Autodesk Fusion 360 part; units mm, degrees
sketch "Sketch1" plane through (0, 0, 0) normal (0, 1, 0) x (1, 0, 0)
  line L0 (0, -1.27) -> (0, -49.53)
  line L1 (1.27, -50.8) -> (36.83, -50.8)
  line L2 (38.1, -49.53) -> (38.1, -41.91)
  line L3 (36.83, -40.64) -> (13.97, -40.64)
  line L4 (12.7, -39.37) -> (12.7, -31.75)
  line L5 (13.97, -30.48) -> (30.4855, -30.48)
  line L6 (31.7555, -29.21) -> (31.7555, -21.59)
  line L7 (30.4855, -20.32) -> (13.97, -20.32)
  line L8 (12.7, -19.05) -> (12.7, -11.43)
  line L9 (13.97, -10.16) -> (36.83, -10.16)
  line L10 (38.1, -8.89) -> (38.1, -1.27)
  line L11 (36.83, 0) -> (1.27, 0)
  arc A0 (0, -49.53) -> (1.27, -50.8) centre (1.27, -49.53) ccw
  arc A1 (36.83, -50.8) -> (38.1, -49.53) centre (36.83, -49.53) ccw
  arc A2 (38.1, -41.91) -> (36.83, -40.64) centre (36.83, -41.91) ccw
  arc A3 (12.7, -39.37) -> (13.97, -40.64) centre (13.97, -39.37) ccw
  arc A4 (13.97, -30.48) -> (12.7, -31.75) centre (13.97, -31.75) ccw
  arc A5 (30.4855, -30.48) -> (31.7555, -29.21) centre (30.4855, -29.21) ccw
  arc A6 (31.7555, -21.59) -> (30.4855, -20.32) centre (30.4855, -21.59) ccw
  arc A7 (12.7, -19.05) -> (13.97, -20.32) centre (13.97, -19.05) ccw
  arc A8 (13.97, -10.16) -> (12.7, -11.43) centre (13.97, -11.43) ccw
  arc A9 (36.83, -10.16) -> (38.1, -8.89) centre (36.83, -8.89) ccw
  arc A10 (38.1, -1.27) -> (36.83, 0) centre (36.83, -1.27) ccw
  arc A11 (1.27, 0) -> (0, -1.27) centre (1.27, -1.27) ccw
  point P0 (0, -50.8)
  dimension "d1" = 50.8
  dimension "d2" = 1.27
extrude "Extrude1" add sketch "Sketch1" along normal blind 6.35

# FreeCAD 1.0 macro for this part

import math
import FreeCAD as App
import Part
import Sketcher
Q = App.Units.Quantity

doc = App.newDocument("Part")
params = doc.addObject("Spreadsheet::Sheet", "Params")
for row, (alias, value) in enumerate([
    ("sketch1_radius", "0.05 in"),
    ("sketch1_width", "1.4 in"),
    ("sketch1_width2", "0.9 in"),
    ("pad1_length", "0.25 in"),
], start=1):
    params.set(f"A{row}", alias)
    params.set(f"B{row}", "=" + value)
    params.setAlias(f"B{row}", alias)

body = doc.addObject("PartDesign::Body", "Body")

# Sketch on XZ plane
sketch1 = doc.addObject("Sketcher::SketchObject", "Sketch")
body.addObject(sketch1)
sketch1.AttachmentSupport = (doc.XZ_Plane, [""])
sketch1.MapMode = "FlatFace"
sketch1.addGeometry(Part.ArcOfCircle(Part.Circle(App.Vector(1.27, 1.27, 0), App.Vector(0, 0, 1), 1.27), math.radians(180), math.radians(270)), False)
sketch1.addGeometry(Part.LineSegment(App.Vector(0, 1.27, 0), App.Vector(0, 49.53, 0)), False)
sketch1.addGeometry(Part.ArcOfCircle(Part.Circle(App.Vector(1.27, 49.53, 0), App.Vector(0, 0, 1), 1.27), math.radians(90), math.radians(180)), False)
sketch1.addGeometry(Part.LineSegment(App.Vector(1.27, 50.8, 0), App.Vector(36.83, 50.8, 0)), False)
sketch1.addGeometry(Part.ArcOfCircle(Part.Circle(App.Vector(36.83, 49.53, 0), App.Vector(0, 0, 1), 1.27), math.radians(0), math.radians(90)), False)
sketch1.addGeometry(Part.LineSegment(App.Vector(38.1, 49.53, 0), App.Vector(38.1, 41.91, 0)), False)
sketch1.addGeometry(Part.ArcOfCircle(Part.Circle(App.Vector(36.83, 41.91, 0), App.Vector(0, 0, 1), 1.27), math.radians(-90), math.radians(0)), False)
sketch1.addGeometry(Part.LineSegment(App.Vector(36.83, 40.64, 0), App.Vector(13.97, 40.64, 0)), False)
sketch1.addGeometry(Part.ArcOfCircle(Part.Circle(App.Vector(13.97, 39.37, 0), App.Vector(0, 0, 1), 1.27), math.radians(90), math.radians(180)), False)
sketch1.addGeometry(Part.LineSegment(App.Vector(12.7, 39.37, 0), App.Vector(12.7, 31.75, 0)), False)
sketch1.addGeometry(Part.ArcOfCircle(Part.Circle(App.Vector(13.97, 31.75, 0), App.Vector(0, 0, 1), 1.27), math.radians(180), math.radians(270)), False)
sketch1.addGeometry(Part.LineSegment(App.Vector(13.97, 30.48, 0), App.Vector(30.4855, 30.48, 0)), False)
sketch1.addGeometry(Part.ArcOfCircle(Part.Circle(App.Vector(30.4855, 29.21, 0), App.Vector(0, 0, 1), 1.27), math.radians(0), math.radians(90)), False)
sketch1.addGeometry(Part.LineSegment(App.Vector(31.7555, 29.21, 0), App.Vector(31.7555, 21.59, 0)), False)
sketch1.addGeometry(Part.ArcOfCircle(Part.Circle(App.Vector(30.4855, 21.59, 0), App.Vector(0, 0, 1), 1.27), math.radians(-90), math.radians(0)), False)
sketch1.addGeometry(Part.LineSegment(App.Vector(30.4855, 20.32, 0), App.Vector(13.97, 20.32, 0)), False)
sketch1.addGeometry(Part.ArcOfCircle(Part.Circle(App.Vector(13.97, 19.05, 0), App.Vector(0, 0, 1), 1.27), math.radians(90), math.radians(180)), False)
sketch1.addGeometry(Part.LineSegment(App.Vector(12.7, 19.05, 0), App.Vector(12.7, 11.43, 0)), False)
sketch1.addGeometry(Part.ArcOfCircle(Part.Circle(App.Vector(13.97, 11.43, 0), App.Vector(0, 0, 1), 1.27), math.radians(180), math.radians(270)), False)
sketch1.addGeometry(Part.LineSegment(App.Vector(13.97, 10.16, 0), App.Vector(36.83, 10.16, 0)), False)
sketch1.addGeometry(Part.ArcOfCircle(Part.Circle(App.Vector(36.83, 8.89, 0), App.Vector(0, 0, 1), 1.27), math.radians(0), math.radians(90)), False)
sketch1.addGeometry(Part.LineSegment(App.Vector(38.1, 8.89, 0), App.Vector(38.1, 1.27, 0)), False)
sketch1.addGeometry(Part.ArcOfCircle(Part.Circle(App.Vector(36.83, 1.27, 0), App.Vector(0, 0, 1), 1.27), math.radians(-90), math.radians(0)), False)
sketch1.addGeometry(Part.LineSegment(App.Vector(36.83, 0, 0), App.Vector(1.27, 0, 0)), False)
sketch1.addConstraint(Sketcher.Constraint("Tangent", 0, 1, 1, 1))
sketch1.addConstraint(Sketcher.Constraint("Tangent", 1, 2, 2, 2))
sketch1.addConstraint(Sketcher.Constraint("Tangent", 2, 1, 3, 1))
sketch1.addConstraint(Sketcher.Constraint("Tangent", 3, 2, 4, 2))
sketch1.addConstraint(Sketcher.Constraint("Tangent", 4, 1, 5, 1))
sketch1.addConstraint(Sketcher.Constraint("Tangent", 5, 2, 6, 2))
sketch1.addConstraint(Sketcher.Constraint("Tangent", 6, 1, 7, 1))
sketch1.addConstraint(Sketcher.Constraint("Tangent", 7, 2, 8, 1))
sketch1.addConstraint(Sketcher.Constraint("Tangent", 8, 2, 9, 1))
sketch1.addConstraint(Sketcher.Constraint("Tangent", 9, 2, 10, 1))
sketch1.addConstraint(Sketcher.Constraint("Tangent", 10, 2, 11, 1))
sketch1.addConstraint(Sketcher.Constraint("Tangent", 11, 2, 12, 2))
sketch1.addConstraint(Sketcher.Constraint("Tangent", 12, 1, 13, 1))
sketch1.addConstraint(Sketcher.Constraint("Tangent", 13, 2, 14, 2))
sketch1.addConstraint(Sketcher.Constraint("Tangent", 14, 1, 15, 1))
sketch1.addConstraint(Sketcher.Constraint("Tangent", 15, 2, 16, 1))
sketch1.addConstraint(Sketcher.Constraint("Tangent", 16, 2, 17, 1))
sketch1.addConstraint(Sketcher.Constraint("Tangent", 17, 2, 18, 1))
sketch1.addConstraint(Sketcher.Constraint("Tangent", 18, 2, 19, 1))
sketch1.addConstraint(Sketcher.Constraint("Tangent", 19, 2, 20, 2))
sketch1.addConstraint(Sketcher.Constraint("Tangent", 20, 1, 21, 1))
sketch1.addConstraint(Sketcher.Constraint("Tangent", 21, 2, 22, 2))
sketch1.addConstraint(Sketcher.Constraint("Tangent", 22, 1, 23, 1))
sketch1.addConstraint(Sketcher.Constraint("Tangent", 23, 2, 0, 2))
sketch1.addConstraint(Sketcher.Constraint("Vertical", 1))
sketch1.addConstraint(Sketcher.Constraint("Horizontal", 3))
sketch1.addConstraint(Sketcher.Constraint("Vertical", 5))
sketch1.addConstraint(Sketcher.Constraint("Horizontal", 7))
sketch1.addConstraint(Sketcher.Constraint("Vertical", 9))
sketch1.addConstraint(Sketcher.Constraint("Horizontal", 11))
sketch1.addConstraint(Sketcher.Constraint("Vertical", 13))
sketch1.addConstraint(Sketcher.Constraint("Horizontal", 15))
sketch1.addConstraint(Sketcher.Constraint("Vertical", 17))
sketch1.addConstraint(Sketcher.Constraint("Horizontal", 19))
sketch1.addConstraint(Sketcher.Constraint("Vertical", 21))
sketch1.addConstraint(Sketcher.Constraint("Horizontal", 23))
sketch1.addConstraint(Sketcher.Constraint("Equal", 0, 2))
sketch1.addConstraint(Sketcher.Constraint("Equal", 2, 4))
sketch1.addConstraint(Sketcher.Constraint("Equal", 4, 6))
sketch1.addConstraint(Sketcher.Constraint("Equal", 6, 8))
sketch1.addConstraint(Sketcher.Constraint("Equal", 8, 10))
sketch1.addConstraint(Sketcher.Constraint("Equal", 10, 12))
sketch1.addConstraint(Sketcher.Constraint("Equal", 12, 14))
sketch1.addConstraint(Sketcher.Constraint("Equal", 14, 16))
sketch1.addConstraint(Sketcher.Constraint("Equal", 16, 18))
sketch1.addConstraint(Sketcher.Constraint("Equal", 18, 20))
sketch1.addConstraint(Sketcher.Constraint("Equal", 20, 22))
sketch1.addConstraint(Sketcher.Constraint("PointOnObject", 0, 1, -2))
sketch1.addConstraint(Sketcher.Constraint("PointOnObject", 22, 1, -1))
sketch1.addConstraint(Sketcher.Constraint("Vertical", 10, 3, 16, 3))
sketch1.addConstraint(Sketcher.Constraint("Vertical", 6, 3, 20, 3))
sketch1.addConstraint(Sketcher.Constraint("Equal", 5, 9))
sketch1.addConstraint(Sketcher.Constraint("Equal", 9, 13))
sketch1.addConstraint(Sketcher.Constraint("Equal", 13, 17))
sketch1.addConstraint(Sketcher.Constraint("Equal", 17, 21))
sketch1.addConstraint(Sketcher.Constraint("Radius", 0, Q("0.05 in")))
sketch1.addConstraint(Sketcher.Constraint("DistanceY", -1, 1, 2, 1, Q("2 in")))
sketch1.addConstraint(Sketcher.Constraint("DistanceX", 3, 1, 3, 2, Q("1.4 in")))
sketch1.addConstraint(Sketcher.Constraint("DistanceX", 7, 2, 7, 1, Q("0.9 in")))
sketch1.addConstraint(Sketcher.Constraint("DistanceX", 11, 1, 11, 2, 16.5155))
sketch1.setExpression("Constraints[55]", "Params.sketch1_radius")
sketch1.setExpression("Constraints[57]", "Params.sketch1_width")
sketch1.setExpression("Constraints[58]", "Params.sketch1_width2")
pad1 = doc.addObject("PartDesign::Pad", "Pad")
body.addObject(pad1)
pad1.Profile = sketch1
pad1.setExpression("Length", "Params.pad1_length")
pad1.Reversed = True

doc.recompute()
